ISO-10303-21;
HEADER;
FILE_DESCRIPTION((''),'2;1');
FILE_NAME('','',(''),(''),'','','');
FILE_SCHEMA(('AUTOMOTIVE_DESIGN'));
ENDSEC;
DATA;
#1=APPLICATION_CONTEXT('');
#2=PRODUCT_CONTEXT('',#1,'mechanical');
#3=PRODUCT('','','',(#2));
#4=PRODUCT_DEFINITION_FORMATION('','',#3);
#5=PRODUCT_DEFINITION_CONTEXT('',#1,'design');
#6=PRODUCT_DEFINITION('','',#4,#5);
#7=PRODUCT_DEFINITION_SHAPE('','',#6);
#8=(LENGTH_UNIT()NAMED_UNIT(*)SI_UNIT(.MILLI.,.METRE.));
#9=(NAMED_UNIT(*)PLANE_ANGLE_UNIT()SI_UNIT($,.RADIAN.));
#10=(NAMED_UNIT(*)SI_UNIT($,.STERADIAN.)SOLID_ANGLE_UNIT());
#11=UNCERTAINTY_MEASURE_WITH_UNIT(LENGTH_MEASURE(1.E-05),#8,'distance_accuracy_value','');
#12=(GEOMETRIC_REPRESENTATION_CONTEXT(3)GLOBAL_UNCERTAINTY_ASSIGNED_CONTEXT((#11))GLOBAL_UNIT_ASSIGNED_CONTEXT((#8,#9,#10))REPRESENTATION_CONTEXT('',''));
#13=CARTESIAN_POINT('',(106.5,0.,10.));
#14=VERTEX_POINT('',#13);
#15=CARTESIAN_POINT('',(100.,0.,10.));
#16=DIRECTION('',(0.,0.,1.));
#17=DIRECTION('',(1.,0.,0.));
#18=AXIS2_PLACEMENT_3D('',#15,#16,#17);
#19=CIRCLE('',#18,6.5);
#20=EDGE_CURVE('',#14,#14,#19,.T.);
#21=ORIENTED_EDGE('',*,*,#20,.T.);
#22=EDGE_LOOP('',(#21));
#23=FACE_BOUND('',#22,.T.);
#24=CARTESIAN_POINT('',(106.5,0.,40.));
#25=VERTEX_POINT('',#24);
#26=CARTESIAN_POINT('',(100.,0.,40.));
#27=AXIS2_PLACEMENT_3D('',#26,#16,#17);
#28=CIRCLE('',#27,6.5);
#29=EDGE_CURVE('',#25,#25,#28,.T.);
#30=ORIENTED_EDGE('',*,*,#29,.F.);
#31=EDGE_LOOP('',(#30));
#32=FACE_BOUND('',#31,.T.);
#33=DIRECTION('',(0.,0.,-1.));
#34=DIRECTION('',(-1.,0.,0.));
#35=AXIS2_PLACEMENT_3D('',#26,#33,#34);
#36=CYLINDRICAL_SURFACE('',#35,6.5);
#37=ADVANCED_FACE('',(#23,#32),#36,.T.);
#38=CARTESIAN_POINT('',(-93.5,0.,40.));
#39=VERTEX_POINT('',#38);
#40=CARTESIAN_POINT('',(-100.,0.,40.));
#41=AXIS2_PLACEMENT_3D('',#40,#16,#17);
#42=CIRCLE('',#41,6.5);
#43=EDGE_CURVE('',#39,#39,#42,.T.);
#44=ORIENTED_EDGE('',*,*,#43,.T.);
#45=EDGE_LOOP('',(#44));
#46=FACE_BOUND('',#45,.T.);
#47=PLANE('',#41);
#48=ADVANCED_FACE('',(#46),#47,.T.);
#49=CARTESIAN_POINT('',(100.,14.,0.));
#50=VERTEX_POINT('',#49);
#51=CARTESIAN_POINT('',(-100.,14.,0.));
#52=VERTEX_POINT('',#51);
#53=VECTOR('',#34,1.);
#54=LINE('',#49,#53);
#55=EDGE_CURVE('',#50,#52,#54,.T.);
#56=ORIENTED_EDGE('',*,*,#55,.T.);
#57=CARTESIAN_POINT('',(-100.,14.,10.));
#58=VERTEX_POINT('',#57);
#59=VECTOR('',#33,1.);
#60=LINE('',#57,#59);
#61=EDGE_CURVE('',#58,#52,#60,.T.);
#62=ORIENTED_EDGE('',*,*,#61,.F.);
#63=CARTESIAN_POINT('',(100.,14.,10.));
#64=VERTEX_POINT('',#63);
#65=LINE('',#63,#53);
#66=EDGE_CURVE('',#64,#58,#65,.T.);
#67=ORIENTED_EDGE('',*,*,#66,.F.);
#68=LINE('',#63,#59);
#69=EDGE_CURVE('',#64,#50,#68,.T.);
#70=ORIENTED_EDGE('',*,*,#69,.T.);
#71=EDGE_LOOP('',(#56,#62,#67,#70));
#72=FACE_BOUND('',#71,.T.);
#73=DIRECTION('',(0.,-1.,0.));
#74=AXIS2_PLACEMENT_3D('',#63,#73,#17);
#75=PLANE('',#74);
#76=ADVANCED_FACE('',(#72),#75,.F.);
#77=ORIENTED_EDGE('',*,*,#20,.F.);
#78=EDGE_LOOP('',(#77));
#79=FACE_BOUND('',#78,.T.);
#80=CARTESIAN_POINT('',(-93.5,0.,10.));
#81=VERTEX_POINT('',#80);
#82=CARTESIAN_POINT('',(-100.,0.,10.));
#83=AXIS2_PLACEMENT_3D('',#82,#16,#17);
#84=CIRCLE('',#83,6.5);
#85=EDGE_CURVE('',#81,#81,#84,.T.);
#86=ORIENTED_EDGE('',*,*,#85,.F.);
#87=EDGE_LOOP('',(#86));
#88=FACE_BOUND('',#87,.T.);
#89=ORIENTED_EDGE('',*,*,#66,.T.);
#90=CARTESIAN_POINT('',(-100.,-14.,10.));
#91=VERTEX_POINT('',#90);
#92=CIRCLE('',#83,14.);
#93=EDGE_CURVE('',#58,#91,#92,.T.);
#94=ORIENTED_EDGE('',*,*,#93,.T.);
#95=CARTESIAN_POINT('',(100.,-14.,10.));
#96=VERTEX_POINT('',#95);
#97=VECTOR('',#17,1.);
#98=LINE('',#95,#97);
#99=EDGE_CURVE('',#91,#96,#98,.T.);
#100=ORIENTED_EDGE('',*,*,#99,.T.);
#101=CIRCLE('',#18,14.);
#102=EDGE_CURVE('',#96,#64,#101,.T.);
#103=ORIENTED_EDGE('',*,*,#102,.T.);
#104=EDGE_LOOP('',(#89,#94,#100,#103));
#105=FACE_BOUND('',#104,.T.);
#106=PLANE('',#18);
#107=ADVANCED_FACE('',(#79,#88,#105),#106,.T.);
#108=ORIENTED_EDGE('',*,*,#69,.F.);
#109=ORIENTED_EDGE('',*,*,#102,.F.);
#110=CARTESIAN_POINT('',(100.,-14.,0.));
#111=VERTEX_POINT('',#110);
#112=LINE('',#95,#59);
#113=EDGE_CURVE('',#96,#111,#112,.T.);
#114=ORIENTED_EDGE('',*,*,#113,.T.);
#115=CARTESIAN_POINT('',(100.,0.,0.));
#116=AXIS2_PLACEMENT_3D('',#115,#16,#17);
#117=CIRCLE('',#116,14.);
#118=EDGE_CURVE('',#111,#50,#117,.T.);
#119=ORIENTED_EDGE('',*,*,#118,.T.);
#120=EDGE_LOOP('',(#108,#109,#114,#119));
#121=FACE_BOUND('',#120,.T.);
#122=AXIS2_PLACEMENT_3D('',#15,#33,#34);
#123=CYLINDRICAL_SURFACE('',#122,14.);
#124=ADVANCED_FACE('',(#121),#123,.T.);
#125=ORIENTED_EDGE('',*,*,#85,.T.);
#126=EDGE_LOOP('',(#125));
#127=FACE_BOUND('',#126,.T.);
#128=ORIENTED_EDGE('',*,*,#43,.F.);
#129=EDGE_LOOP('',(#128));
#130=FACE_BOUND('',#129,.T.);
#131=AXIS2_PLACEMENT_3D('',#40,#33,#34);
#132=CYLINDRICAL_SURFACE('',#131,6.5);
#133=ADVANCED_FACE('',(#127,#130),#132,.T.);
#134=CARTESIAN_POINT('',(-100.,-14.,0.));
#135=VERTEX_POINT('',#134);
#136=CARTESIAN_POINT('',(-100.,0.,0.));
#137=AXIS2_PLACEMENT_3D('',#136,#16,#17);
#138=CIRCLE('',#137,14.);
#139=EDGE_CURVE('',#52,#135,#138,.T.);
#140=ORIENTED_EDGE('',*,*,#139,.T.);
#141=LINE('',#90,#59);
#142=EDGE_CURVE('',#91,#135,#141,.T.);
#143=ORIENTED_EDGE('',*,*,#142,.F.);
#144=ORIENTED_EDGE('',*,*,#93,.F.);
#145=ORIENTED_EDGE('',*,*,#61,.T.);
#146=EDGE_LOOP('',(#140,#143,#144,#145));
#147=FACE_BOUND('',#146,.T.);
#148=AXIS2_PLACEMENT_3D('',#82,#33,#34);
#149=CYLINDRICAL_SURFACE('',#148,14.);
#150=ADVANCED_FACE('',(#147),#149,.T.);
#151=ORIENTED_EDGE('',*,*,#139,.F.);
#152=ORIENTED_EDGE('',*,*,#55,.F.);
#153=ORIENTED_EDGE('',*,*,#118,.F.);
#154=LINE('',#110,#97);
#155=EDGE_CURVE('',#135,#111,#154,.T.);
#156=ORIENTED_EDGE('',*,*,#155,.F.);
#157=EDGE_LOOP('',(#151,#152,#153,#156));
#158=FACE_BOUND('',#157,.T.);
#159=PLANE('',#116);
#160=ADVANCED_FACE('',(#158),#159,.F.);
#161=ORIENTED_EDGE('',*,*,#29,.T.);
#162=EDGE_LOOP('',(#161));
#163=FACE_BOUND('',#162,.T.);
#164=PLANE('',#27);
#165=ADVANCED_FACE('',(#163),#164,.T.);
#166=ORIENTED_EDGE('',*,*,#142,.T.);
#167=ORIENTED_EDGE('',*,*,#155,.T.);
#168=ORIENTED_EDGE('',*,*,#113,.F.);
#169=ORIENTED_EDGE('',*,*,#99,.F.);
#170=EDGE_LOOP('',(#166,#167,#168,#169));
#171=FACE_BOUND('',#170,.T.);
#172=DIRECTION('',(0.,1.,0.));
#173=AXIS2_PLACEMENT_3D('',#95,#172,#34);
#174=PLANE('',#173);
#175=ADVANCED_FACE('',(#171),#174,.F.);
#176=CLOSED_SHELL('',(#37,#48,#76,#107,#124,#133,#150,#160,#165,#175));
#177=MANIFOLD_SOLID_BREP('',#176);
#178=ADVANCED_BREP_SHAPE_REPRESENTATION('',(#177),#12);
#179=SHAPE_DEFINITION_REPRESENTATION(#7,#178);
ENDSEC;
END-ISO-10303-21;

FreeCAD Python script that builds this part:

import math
import FreeCAD as App
import Part
import Sketcher
from FreeCAD import Vector
Q = App.Units.Quantity

doc = App.newDocument("Part")
body = doc.addObject("PartDesign::Body", "Body")

# Sketch on XY plane
sketch1 = body.newObject("Sketcher::SketchObject", "Sketch")
sketch1.AttachmentSupport = (doc.getObject("XY_Plane"), [""])
sketch1.MapMode = "FlatFace"
sketch1.addGeometry([
    Part.LineSegment(Vector(-100, -14, 0), Vector(100, -14, 0)),
    Part.ArcOfCircle(Part.Circle(Vector(100, 0, 0), Vector(0, 0, 1), 14), math.radians(-90), math.radians(90)),
    Part.LineSegment(Vector(100, 14, 0), Vector(-100, 14, 0)),
    Part.ArcOfCircle(Part.Circle(Vector(-100, 0, 0), Vector(0, 0, 1), 14), math.radians(90), math.radians(270)),
], False)
sketch1.addConstraint([
    Sketcher.Constraint("Tangent", 0, 2, 1, 1),
    Sketcher.Constraint("Tangent", 1, 2, 2, 1),
    Sketcher.Constraint("Tangent", 2, 2, 3, 1),
    Sketcher.Constraint("Tangent", 3, 2, 0, 1),
    Sketcher.Constraint("Horizontal", 0),
    Sketcher.Constraint("Horizontal", 2),
    Sketcher.Constraint("Symmetric", 1, 3, 3, 3, -1, 1),
    Sketcher.Constraint("Radius", 1, Q("14 mm")),
    Sketcher.Constraint("DistanceX", 0, 1, 0, 2, Q("200 mm")),
])
pad1 = body.newObject("PartDesign::Pad", "Pad")
pad1.Profile = sketch1
pad1.Length = 10

# Sketch on XY plane
sketch2 = body.newObject("Sketcher::SketchObject", "Sketch001")
sketch2.AttachmentSupport = (doc.getObject("XY_Plane"), [""])
sketch2.MapMode = "FlatFace"
sketch2.AttachmentOffset = App.Placement(Vector(0, 0, 10), App.Rotation())
sketch2.addGeometry([
    Part.Circle(Vector(100, 0, 0), Vector(0, 0, 1), 6.5),
    Part.Circle(Vector(-100, 0, 0), Vector(0, 0, 1), 6.5),
], False)
sketch2.addConstraint([
    Sketcher.Constraint("Equal", 0, 1),
    Sketcher.Constraint("Symmetric", 0, 3, 1, 3, -1, 1),
    Sketcher.Constraint("PointOnObject", 0, 3, -1),
    Sketcher.Constraint("Diameter", 0, Q("13 mm")),
    Sketcher.Constraint("DistanceX", -1, 1, 0, 3, Q("100 mm")),
])
pad2 = body.newObject("PartDesign::Pad", "Pad001")
pad2.Profile = sketch2
pad2.Length = 30

doc.recompute()
